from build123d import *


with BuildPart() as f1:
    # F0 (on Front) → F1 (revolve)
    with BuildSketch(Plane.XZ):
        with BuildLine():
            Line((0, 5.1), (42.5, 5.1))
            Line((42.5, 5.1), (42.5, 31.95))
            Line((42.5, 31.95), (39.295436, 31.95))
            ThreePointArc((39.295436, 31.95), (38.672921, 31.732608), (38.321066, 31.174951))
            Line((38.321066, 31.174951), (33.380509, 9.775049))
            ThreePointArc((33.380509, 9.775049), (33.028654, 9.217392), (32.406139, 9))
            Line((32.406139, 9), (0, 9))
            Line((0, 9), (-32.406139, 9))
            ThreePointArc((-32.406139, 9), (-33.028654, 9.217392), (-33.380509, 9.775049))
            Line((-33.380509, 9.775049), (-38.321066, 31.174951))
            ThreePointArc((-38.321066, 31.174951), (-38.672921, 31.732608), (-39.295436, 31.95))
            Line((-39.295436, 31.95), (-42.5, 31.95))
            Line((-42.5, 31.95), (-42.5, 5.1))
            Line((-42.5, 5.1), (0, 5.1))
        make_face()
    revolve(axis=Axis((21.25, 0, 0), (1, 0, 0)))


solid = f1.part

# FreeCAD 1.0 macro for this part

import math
import FreeCAD as App
import Part
import Sketcher
from FreeCAD import Vector
Q = App.Units.Quantity

doc = App.newDocument("Part")
body = doc.addObject("PartDesign::Body", "Body")

# Sketch on XZ plane
sketch1 = body.newObject("Sketcher::SketchObject", "Sketch")
sketch1.AttachmentSupport = (doc.getObject("XZ_Plane"), [""])
sketch1.MapMode = "FlatFace"
sketch1.addGeometry([
    Part.LineSegment(Vector(42.5, 5.1, 0), Vector(42.5, 31.9, 0)),  # 0
    Part.LineSegment(Vector(42.5, 31.9, 0), Vector(39.3, 31.9, 0)),  # 1
    Part.ArcOfCircle(Part.Circle(Vector(39.3, 31, 0), Vector(0, 0, 1), 1), math.radians(90), math.radians(167)),  # 2
    Part.LineSegment(Vector(38.3, 31.2, 0), Vector(33.4, 9.8, 0)),  # 3
    Part.ArcOfCircle(Part.Circle(Vector(32.4, 10, 0), Vector(0, 0, 1), 1), math.radians(-90), math.radians(-13)),  # 4
    Part.LineSegment(Vector(32.4, 9, 0), Vector(-32.4, 9, 0)),  # 5
    Part.ArcOfCircle(Part.Circle(Vector(-32.4, 10, 0), Vector(0, 0, 1), 1), math.radians(-167), math.radians(-90)),  # 6
    Part.LineSegment(Vector(-33.4, 9.8, 0), Vector(-38.3, 31.2, 0)),  # 7
    Part.ArcOfCircle(Part.Circle(Vector(-39.3, 31, 0), Vector(0, 0, 1), 1), math.radians(13), math.radians(90)),  # 8
    Part.LineSegment(Vector(-39.3, 31.9, 0), Vector(-42.5, 31.9, 0)),  # 9
    Part.LineSegment(Vector(-42.5, 31.9, 0), Vector(-42.5, 5.1, 0)),  # 10
    Part.LineSegment(Vector(-42.5, 5.1, 0), Vector(42.5, 5.1, 0)),  # 11
], False)
sketch1.addConstraint([
    Sketcher.Constraint("Coincident", 0, 2, 1, 1),
    Sketcher.Constraint("Tangent", 1, 2, 2, 1),
    Sketcher.Constraint("Tangent", 2, 2, 3, 1),
    Sketcher.Constraint("Tangent", 3, 2, 4, 2),
    Sketcher.Constraint("Tangent", 4, 1, 5, 1),
    Sketcher.Constraint("Tangent", 5, 2, 6, 2),
    Sketcher.Constraint("Tangent", 6, 1, 7, 1),
    Sketcher.Constraint("Tangent", 7, 2, 8, 1),
    Sketcher.Constraint("Tangent", 8, 2, 9, 1),
    Sketcher.Constraint("Coincident", 9, 2, 10, 1),
    Sketcher.Constraint("Coincident", 10, 2, 11, 1),
    Sketcher.Constraint("Coincident", 11, 2, 0, 1),
    Sketcher.Constraint("Vertical", 0),
    Sketcher.Constraint("Horizontal", 1),
    Sketcher.Constraint("Horizontal", 5),
    Sketcher.Constraint("Horizontal", 9),
    Sketcher.Constraint("Vertical", 10),
    Sketcher.Constraint("Horizontal", 11),
    Sketcher.Constraint("Equal", 2, 4),
    Sketcher.Constraint("Equal", 4, 6),
    Sketcher.Constraint("Equal", 6, 8),
    Sketcher.Constraint("Symmetric", 2, 3, 8, 3, -2),
    Sketcher.Constraint("Horizontal", 3, 2, 6, 1),
    Sketcher.Constraint("Equal", 1, 9),
    Sketcher.Constraint("Radius", 2, 0.999999),
    Sketcher.Constraint("DistanceX", 11, 1, 11, 2, 85.0),
    Sketcher.Constraint("Angle", 3, Q("-103.000001 deg")),
    Sketcher.Constraint("DistanceY", -1, 1, 4, 3, 9.999999),
    Sketcher.Constraint("DistanceY", 0, 1, 0, 2, 26.85),
    Sketcher.Constraint("DistanceY", -1, 1, 10, 2, 5.1),
    Sketcher.Constraint("DistanceX", 5, 2, 5, 1, 64.812278),
])
revolution = body.newObject("PartDesign::Revolution", "Revolution")
revolution.Profile = sketch1
revolution.ReferenceAxis = (sketch1, ["H_Axis"])
revolution.Angle = 360

doc.recompute()
